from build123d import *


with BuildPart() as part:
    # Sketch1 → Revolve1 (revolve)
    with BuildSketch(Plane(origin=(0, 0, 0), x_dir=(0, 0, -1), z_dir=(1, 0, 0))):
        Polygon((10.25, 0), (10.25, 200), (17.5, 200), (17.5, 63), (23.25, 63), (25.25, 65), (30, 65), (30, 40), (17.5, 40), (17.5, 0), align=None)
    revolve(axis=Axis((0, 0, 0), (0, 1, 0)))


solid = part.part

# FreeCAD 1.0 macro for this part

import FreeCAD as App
import Part
import Sketcher
Q = App.Units.Quantity


def add_polygon(sketch, points):
    """Adds a closed chain of lines whose ends are joined by coincident constraints."""
    first, n = sketch.GeometryCount, len(points)
    for a, b in zip(points, points[1:] + points[:1]):
        sketch.addGeometry(Part.LineSegment(App.Vector(*a, 0), App.Vector(*b, 0)), False)
    for i in range(n):
        sketch.addConstraint(Sketcher.Constraint("Coincident", first + i, 2, first + (i + 1) % n, 1))

doc = App.newDocument("Part")
body = doc.addObject("PartDesign::Body", "Body")

# Sketch on YZ plane
sketch1 = doc.addObject("Sketcher::SketchObject", "Sketch")
body.addObject(sketch1)
sketch1.AttachmentSupport = (doc.YZ_Plane, [""])
sketch1.MapMode = "FlatFace"
add_polygon(sketch1, [(200, -10.2), (0, -10.2), (0, -17.5), (40, -17.5), (40, -30), (65, -30), (65, -25.2), (63, -23.2), (63, -17.5), (200, -17.5)])  # lines 0-9
sketch1.addConstraint([
    Sketcher.Constraint("Horizontal", 0),
    Sketcher.Constraint("Vertical", 1),
    Sketcher.Constraint("Horizontal", 2),
    Sketcher.Constraint("Vertical", 3),
    Sketcher.Constraint("Horizontal", 4),
    Sketcher.Constraint("Vertical", 5),
    Sketcher.Constraint("Vertical", 7),
    Sketcher.Constraint("Horizontal", 8),
    Sketcher.Constraint("Vertical", 9),
    Sketcher.Constraint("PointOnObject", 0, 2, -2),
    Sketcher.Constraint("Horizontal", 2, 2, 7, 2),
    Sketcher.Constraint("DistanceX", 0, 2, 0, 1, Q("200 mm")),
    Sketcher.Constraint("DistanceX", 2, 1, 2, 2, Q("40 mm")),
    Sketcher.Constraint("DistanceX", 4, 1, 4, 2, Q("25 mm")),
    Sketcher.Constraint("DistanceX", 8, 1, 8, 2, Q("137 mm")),
    Sketcher.Constraint("Angle", 6, Q("135 deg")),
    Sketcher.Constraint("DistanceY", 3, 2, 3, 1, Q("12.5 mm")),
    Sketcher.Constraint("DistanceY", 3, 2, -1, 1, Q("30 mm")),
    Sketcher.Constraint("DistanceY", 5, 2, 0, 2, Q("15 mm")),
    Sketcher.Constraint("DistanceY", 1, 2, 1, 1, Q("7.25 mm")),
])
revolution = doc.addObject("PartDesign::Revolution", "Revolution")
body.addObject(revolution)
revolution.Profile = sketch1
revolution.ReferenceAxis = (sketch1, ["H_Axis"])
revolution.Angle = 360

doc.recompute()
